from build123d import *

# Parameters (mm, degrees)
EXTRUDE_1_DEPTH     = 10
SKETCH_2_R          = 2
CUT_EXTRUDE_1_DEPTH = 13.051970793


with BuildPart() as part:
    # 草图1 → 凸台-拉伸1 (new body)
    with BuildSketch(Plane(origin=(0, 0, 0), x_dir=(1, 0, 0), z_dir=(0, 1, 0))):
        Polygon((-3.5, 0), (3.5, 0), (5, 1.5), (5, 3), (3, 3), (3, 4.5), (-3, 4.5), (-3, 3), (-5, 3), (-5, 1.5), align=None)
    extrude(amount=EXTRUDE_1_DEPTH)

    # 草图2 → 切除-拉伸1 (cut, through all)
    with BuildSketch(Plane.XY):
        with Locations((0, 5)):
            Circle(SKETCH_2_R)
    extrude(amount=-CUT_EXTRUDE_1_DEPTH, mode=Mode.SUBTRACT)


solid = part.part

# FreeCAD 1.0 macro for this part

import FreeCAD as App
import Part
import Sketcher

V = App.Vector

doc = App.newDocument("Part")
params = doc.addObject("Spreadsheet::Sheet", "Params")
for row, (alias, value) in enumerate([
    ("sketch1_width", "7 mm"),
    ("sketch1_width2", "2 mm"),
    ("sketch1_width3", "6 mm"),
    ("sketch1_height", "1.5 mm"),
    ("pad1_length", "10 mm"),
    ("sketch2_diameter", "4 mm"),
], start=1):
    params.set(f"A{row}", alias)
    params.set(f"B{row}", "=" + value)
    params.setAlias(f"B{row}", alias)

body = doc.addObject("PartDesign::Body", "Body")

sketch1 = body.newObject("Sketcher::SketchObject", "Sketch")
sketch1.AttachmentSupport = (doc.getObject("XZ_Plane"), [""])
sketch1.MapMode = "FlatFace"
sketch1.addGeometry([
    Part.LineSegment(V(-3.5, 0, 0), V(3.5, 0, 0)),
    Part.LineSegment(V(3.5, 0, 0), V(5, -1.5, 0)),
    Part.LineSegment(V(5, -1.5, 0), V(5, -3, 0)),
    Part.LineSegment(V(5, -3, 0), V(3, -3, 0)),
    Part.LineSegment(V(3, -3, 0), V(3, -4.5, 0)),
    Part.LineSegment(V(3, -4.5, 0), V(-3, -4.5, 0)),
    Part.LineSegment(V(-3, -4.5, 0), V(-3, -3, 0)),
    Part.LineSegment(V(-3, -3, 0), V(-5, -3, 0)),
    Part.LineSegment(V(-5, -3, 0), V(-5, -1.5, 0)),
    Part.LineSegment(V(-5, -1.5, 0), V(-3.5, 0, 0)),
], False)
sketch1.addConstraint([
    Sketcher.Constraint("Coincident", 0, 2, 1, 1),
    Sketcher.Constraint("Coincident", 1, 2, 2, 1),
    Sketcher.Constraint("Coincident", 2, 2, 3, 1),
    Sketcher.Constraint("Coincident", 3, 2, 4, 1),
    Sketcher.Constraint("Coincident", 4, 2, 5, 1),
    Sketcher.Constraint("Coincident", 5, 2, 6, 1),
    Sketcher.Constraint("Coincident", 6, 2, 7, 1),
    Sketcher.Constraint("Coincident", 7, 2, 8, 1),
    Sketcher.Constraint("Coincident", 8, 2, 9, 1),
    Sketcher.Constraint("Coincident", 9, 2, 0, 1),
    Sketcher.Constraint("Horizontal", 0),
    Sketcher.Constraint("Vertical", 2),
    Sketcher.Constraint("Horizontal", 3),
    Sketcher.Constraint("Vertical", 4),
    Sketcher.Constraint("Horizontal", 5),
    Sketcher.Constraint("Vertical", 6),
    Sketcher.Constraint("Horizontal", 7),
    Sketcher.Constraint("Vertical", 8),
    Sketcher.Constraint("Symmetric", 0, 2, 9, 2, -1, 1),
    Sketcher.Constraint("Symmetric", 3, 2, 6, 2, -2),
    Sketcher.Constraint("Symmetric", 1, 2, 8, 2, -2),
    Sketcher.Constraint("Perpendicular", 1, 9),
    Sketcher.Constraint("Equal", 2, 4),
    Sketcher.Constraint("DistanceX", 0, 1, 0, 2, 7.0),
    Sketcher.Constraint("DistanceX", 3, 2, 3, 1, 2.0),
    Sketcher.Constraint("DistanceX", 5, 2, 5, 1, 6.0),
    Sketcher.Constraint("DistanceY", 2, 2, 2, 1, 1.5),
])
sketch1.setExpression("Constraints[23]", "Params.sketch1_width")
sketch1.setExpression("Constraints[24]", "Params.sketch1_width2")
sketch1.setExpression("Constraints[25]", "Params.sketch1_width3")
sketch1.setExpression("Constraints[26]", "Params.sketch1_height")
pad1 = body.newObject("PartDesign::Pad", "Pad")
pad1.Profile = sketch1
pad1.setExpression("Length", "Params.pad1_length")
pad1.Reversed = True

sketch2 = body.newObject("Sketcher::SketchObject", "Sketch001")
sketch2.AttachmentSupport = (doc.getObject("XY_Plane"), [""])
sketch2.MapMode = "FlatFace"
sketch2.addGeometry(Part.Circle(V(0, 5, 0), V(0, 0, 1), 2), False)
sketch2.addConstraint([
    Sketcher.Constraint("PointOnObject", 0, 3, -2),
    Sketcher.Constraint("Diameter", 0, 4.0),
    Sketcher.Constraint("DistanceY", -1, 1, 0, 3, 5.0),
])
sketch2.setExpression("Constraints[1]", "Params.sketch2_diameter")
pocket1 = body.newObject("PartDesign::Pocket", "Pocket")
pocket1.Profile = sketch2
pocket1.Type = "ThroughAll"

doc.recompute()
